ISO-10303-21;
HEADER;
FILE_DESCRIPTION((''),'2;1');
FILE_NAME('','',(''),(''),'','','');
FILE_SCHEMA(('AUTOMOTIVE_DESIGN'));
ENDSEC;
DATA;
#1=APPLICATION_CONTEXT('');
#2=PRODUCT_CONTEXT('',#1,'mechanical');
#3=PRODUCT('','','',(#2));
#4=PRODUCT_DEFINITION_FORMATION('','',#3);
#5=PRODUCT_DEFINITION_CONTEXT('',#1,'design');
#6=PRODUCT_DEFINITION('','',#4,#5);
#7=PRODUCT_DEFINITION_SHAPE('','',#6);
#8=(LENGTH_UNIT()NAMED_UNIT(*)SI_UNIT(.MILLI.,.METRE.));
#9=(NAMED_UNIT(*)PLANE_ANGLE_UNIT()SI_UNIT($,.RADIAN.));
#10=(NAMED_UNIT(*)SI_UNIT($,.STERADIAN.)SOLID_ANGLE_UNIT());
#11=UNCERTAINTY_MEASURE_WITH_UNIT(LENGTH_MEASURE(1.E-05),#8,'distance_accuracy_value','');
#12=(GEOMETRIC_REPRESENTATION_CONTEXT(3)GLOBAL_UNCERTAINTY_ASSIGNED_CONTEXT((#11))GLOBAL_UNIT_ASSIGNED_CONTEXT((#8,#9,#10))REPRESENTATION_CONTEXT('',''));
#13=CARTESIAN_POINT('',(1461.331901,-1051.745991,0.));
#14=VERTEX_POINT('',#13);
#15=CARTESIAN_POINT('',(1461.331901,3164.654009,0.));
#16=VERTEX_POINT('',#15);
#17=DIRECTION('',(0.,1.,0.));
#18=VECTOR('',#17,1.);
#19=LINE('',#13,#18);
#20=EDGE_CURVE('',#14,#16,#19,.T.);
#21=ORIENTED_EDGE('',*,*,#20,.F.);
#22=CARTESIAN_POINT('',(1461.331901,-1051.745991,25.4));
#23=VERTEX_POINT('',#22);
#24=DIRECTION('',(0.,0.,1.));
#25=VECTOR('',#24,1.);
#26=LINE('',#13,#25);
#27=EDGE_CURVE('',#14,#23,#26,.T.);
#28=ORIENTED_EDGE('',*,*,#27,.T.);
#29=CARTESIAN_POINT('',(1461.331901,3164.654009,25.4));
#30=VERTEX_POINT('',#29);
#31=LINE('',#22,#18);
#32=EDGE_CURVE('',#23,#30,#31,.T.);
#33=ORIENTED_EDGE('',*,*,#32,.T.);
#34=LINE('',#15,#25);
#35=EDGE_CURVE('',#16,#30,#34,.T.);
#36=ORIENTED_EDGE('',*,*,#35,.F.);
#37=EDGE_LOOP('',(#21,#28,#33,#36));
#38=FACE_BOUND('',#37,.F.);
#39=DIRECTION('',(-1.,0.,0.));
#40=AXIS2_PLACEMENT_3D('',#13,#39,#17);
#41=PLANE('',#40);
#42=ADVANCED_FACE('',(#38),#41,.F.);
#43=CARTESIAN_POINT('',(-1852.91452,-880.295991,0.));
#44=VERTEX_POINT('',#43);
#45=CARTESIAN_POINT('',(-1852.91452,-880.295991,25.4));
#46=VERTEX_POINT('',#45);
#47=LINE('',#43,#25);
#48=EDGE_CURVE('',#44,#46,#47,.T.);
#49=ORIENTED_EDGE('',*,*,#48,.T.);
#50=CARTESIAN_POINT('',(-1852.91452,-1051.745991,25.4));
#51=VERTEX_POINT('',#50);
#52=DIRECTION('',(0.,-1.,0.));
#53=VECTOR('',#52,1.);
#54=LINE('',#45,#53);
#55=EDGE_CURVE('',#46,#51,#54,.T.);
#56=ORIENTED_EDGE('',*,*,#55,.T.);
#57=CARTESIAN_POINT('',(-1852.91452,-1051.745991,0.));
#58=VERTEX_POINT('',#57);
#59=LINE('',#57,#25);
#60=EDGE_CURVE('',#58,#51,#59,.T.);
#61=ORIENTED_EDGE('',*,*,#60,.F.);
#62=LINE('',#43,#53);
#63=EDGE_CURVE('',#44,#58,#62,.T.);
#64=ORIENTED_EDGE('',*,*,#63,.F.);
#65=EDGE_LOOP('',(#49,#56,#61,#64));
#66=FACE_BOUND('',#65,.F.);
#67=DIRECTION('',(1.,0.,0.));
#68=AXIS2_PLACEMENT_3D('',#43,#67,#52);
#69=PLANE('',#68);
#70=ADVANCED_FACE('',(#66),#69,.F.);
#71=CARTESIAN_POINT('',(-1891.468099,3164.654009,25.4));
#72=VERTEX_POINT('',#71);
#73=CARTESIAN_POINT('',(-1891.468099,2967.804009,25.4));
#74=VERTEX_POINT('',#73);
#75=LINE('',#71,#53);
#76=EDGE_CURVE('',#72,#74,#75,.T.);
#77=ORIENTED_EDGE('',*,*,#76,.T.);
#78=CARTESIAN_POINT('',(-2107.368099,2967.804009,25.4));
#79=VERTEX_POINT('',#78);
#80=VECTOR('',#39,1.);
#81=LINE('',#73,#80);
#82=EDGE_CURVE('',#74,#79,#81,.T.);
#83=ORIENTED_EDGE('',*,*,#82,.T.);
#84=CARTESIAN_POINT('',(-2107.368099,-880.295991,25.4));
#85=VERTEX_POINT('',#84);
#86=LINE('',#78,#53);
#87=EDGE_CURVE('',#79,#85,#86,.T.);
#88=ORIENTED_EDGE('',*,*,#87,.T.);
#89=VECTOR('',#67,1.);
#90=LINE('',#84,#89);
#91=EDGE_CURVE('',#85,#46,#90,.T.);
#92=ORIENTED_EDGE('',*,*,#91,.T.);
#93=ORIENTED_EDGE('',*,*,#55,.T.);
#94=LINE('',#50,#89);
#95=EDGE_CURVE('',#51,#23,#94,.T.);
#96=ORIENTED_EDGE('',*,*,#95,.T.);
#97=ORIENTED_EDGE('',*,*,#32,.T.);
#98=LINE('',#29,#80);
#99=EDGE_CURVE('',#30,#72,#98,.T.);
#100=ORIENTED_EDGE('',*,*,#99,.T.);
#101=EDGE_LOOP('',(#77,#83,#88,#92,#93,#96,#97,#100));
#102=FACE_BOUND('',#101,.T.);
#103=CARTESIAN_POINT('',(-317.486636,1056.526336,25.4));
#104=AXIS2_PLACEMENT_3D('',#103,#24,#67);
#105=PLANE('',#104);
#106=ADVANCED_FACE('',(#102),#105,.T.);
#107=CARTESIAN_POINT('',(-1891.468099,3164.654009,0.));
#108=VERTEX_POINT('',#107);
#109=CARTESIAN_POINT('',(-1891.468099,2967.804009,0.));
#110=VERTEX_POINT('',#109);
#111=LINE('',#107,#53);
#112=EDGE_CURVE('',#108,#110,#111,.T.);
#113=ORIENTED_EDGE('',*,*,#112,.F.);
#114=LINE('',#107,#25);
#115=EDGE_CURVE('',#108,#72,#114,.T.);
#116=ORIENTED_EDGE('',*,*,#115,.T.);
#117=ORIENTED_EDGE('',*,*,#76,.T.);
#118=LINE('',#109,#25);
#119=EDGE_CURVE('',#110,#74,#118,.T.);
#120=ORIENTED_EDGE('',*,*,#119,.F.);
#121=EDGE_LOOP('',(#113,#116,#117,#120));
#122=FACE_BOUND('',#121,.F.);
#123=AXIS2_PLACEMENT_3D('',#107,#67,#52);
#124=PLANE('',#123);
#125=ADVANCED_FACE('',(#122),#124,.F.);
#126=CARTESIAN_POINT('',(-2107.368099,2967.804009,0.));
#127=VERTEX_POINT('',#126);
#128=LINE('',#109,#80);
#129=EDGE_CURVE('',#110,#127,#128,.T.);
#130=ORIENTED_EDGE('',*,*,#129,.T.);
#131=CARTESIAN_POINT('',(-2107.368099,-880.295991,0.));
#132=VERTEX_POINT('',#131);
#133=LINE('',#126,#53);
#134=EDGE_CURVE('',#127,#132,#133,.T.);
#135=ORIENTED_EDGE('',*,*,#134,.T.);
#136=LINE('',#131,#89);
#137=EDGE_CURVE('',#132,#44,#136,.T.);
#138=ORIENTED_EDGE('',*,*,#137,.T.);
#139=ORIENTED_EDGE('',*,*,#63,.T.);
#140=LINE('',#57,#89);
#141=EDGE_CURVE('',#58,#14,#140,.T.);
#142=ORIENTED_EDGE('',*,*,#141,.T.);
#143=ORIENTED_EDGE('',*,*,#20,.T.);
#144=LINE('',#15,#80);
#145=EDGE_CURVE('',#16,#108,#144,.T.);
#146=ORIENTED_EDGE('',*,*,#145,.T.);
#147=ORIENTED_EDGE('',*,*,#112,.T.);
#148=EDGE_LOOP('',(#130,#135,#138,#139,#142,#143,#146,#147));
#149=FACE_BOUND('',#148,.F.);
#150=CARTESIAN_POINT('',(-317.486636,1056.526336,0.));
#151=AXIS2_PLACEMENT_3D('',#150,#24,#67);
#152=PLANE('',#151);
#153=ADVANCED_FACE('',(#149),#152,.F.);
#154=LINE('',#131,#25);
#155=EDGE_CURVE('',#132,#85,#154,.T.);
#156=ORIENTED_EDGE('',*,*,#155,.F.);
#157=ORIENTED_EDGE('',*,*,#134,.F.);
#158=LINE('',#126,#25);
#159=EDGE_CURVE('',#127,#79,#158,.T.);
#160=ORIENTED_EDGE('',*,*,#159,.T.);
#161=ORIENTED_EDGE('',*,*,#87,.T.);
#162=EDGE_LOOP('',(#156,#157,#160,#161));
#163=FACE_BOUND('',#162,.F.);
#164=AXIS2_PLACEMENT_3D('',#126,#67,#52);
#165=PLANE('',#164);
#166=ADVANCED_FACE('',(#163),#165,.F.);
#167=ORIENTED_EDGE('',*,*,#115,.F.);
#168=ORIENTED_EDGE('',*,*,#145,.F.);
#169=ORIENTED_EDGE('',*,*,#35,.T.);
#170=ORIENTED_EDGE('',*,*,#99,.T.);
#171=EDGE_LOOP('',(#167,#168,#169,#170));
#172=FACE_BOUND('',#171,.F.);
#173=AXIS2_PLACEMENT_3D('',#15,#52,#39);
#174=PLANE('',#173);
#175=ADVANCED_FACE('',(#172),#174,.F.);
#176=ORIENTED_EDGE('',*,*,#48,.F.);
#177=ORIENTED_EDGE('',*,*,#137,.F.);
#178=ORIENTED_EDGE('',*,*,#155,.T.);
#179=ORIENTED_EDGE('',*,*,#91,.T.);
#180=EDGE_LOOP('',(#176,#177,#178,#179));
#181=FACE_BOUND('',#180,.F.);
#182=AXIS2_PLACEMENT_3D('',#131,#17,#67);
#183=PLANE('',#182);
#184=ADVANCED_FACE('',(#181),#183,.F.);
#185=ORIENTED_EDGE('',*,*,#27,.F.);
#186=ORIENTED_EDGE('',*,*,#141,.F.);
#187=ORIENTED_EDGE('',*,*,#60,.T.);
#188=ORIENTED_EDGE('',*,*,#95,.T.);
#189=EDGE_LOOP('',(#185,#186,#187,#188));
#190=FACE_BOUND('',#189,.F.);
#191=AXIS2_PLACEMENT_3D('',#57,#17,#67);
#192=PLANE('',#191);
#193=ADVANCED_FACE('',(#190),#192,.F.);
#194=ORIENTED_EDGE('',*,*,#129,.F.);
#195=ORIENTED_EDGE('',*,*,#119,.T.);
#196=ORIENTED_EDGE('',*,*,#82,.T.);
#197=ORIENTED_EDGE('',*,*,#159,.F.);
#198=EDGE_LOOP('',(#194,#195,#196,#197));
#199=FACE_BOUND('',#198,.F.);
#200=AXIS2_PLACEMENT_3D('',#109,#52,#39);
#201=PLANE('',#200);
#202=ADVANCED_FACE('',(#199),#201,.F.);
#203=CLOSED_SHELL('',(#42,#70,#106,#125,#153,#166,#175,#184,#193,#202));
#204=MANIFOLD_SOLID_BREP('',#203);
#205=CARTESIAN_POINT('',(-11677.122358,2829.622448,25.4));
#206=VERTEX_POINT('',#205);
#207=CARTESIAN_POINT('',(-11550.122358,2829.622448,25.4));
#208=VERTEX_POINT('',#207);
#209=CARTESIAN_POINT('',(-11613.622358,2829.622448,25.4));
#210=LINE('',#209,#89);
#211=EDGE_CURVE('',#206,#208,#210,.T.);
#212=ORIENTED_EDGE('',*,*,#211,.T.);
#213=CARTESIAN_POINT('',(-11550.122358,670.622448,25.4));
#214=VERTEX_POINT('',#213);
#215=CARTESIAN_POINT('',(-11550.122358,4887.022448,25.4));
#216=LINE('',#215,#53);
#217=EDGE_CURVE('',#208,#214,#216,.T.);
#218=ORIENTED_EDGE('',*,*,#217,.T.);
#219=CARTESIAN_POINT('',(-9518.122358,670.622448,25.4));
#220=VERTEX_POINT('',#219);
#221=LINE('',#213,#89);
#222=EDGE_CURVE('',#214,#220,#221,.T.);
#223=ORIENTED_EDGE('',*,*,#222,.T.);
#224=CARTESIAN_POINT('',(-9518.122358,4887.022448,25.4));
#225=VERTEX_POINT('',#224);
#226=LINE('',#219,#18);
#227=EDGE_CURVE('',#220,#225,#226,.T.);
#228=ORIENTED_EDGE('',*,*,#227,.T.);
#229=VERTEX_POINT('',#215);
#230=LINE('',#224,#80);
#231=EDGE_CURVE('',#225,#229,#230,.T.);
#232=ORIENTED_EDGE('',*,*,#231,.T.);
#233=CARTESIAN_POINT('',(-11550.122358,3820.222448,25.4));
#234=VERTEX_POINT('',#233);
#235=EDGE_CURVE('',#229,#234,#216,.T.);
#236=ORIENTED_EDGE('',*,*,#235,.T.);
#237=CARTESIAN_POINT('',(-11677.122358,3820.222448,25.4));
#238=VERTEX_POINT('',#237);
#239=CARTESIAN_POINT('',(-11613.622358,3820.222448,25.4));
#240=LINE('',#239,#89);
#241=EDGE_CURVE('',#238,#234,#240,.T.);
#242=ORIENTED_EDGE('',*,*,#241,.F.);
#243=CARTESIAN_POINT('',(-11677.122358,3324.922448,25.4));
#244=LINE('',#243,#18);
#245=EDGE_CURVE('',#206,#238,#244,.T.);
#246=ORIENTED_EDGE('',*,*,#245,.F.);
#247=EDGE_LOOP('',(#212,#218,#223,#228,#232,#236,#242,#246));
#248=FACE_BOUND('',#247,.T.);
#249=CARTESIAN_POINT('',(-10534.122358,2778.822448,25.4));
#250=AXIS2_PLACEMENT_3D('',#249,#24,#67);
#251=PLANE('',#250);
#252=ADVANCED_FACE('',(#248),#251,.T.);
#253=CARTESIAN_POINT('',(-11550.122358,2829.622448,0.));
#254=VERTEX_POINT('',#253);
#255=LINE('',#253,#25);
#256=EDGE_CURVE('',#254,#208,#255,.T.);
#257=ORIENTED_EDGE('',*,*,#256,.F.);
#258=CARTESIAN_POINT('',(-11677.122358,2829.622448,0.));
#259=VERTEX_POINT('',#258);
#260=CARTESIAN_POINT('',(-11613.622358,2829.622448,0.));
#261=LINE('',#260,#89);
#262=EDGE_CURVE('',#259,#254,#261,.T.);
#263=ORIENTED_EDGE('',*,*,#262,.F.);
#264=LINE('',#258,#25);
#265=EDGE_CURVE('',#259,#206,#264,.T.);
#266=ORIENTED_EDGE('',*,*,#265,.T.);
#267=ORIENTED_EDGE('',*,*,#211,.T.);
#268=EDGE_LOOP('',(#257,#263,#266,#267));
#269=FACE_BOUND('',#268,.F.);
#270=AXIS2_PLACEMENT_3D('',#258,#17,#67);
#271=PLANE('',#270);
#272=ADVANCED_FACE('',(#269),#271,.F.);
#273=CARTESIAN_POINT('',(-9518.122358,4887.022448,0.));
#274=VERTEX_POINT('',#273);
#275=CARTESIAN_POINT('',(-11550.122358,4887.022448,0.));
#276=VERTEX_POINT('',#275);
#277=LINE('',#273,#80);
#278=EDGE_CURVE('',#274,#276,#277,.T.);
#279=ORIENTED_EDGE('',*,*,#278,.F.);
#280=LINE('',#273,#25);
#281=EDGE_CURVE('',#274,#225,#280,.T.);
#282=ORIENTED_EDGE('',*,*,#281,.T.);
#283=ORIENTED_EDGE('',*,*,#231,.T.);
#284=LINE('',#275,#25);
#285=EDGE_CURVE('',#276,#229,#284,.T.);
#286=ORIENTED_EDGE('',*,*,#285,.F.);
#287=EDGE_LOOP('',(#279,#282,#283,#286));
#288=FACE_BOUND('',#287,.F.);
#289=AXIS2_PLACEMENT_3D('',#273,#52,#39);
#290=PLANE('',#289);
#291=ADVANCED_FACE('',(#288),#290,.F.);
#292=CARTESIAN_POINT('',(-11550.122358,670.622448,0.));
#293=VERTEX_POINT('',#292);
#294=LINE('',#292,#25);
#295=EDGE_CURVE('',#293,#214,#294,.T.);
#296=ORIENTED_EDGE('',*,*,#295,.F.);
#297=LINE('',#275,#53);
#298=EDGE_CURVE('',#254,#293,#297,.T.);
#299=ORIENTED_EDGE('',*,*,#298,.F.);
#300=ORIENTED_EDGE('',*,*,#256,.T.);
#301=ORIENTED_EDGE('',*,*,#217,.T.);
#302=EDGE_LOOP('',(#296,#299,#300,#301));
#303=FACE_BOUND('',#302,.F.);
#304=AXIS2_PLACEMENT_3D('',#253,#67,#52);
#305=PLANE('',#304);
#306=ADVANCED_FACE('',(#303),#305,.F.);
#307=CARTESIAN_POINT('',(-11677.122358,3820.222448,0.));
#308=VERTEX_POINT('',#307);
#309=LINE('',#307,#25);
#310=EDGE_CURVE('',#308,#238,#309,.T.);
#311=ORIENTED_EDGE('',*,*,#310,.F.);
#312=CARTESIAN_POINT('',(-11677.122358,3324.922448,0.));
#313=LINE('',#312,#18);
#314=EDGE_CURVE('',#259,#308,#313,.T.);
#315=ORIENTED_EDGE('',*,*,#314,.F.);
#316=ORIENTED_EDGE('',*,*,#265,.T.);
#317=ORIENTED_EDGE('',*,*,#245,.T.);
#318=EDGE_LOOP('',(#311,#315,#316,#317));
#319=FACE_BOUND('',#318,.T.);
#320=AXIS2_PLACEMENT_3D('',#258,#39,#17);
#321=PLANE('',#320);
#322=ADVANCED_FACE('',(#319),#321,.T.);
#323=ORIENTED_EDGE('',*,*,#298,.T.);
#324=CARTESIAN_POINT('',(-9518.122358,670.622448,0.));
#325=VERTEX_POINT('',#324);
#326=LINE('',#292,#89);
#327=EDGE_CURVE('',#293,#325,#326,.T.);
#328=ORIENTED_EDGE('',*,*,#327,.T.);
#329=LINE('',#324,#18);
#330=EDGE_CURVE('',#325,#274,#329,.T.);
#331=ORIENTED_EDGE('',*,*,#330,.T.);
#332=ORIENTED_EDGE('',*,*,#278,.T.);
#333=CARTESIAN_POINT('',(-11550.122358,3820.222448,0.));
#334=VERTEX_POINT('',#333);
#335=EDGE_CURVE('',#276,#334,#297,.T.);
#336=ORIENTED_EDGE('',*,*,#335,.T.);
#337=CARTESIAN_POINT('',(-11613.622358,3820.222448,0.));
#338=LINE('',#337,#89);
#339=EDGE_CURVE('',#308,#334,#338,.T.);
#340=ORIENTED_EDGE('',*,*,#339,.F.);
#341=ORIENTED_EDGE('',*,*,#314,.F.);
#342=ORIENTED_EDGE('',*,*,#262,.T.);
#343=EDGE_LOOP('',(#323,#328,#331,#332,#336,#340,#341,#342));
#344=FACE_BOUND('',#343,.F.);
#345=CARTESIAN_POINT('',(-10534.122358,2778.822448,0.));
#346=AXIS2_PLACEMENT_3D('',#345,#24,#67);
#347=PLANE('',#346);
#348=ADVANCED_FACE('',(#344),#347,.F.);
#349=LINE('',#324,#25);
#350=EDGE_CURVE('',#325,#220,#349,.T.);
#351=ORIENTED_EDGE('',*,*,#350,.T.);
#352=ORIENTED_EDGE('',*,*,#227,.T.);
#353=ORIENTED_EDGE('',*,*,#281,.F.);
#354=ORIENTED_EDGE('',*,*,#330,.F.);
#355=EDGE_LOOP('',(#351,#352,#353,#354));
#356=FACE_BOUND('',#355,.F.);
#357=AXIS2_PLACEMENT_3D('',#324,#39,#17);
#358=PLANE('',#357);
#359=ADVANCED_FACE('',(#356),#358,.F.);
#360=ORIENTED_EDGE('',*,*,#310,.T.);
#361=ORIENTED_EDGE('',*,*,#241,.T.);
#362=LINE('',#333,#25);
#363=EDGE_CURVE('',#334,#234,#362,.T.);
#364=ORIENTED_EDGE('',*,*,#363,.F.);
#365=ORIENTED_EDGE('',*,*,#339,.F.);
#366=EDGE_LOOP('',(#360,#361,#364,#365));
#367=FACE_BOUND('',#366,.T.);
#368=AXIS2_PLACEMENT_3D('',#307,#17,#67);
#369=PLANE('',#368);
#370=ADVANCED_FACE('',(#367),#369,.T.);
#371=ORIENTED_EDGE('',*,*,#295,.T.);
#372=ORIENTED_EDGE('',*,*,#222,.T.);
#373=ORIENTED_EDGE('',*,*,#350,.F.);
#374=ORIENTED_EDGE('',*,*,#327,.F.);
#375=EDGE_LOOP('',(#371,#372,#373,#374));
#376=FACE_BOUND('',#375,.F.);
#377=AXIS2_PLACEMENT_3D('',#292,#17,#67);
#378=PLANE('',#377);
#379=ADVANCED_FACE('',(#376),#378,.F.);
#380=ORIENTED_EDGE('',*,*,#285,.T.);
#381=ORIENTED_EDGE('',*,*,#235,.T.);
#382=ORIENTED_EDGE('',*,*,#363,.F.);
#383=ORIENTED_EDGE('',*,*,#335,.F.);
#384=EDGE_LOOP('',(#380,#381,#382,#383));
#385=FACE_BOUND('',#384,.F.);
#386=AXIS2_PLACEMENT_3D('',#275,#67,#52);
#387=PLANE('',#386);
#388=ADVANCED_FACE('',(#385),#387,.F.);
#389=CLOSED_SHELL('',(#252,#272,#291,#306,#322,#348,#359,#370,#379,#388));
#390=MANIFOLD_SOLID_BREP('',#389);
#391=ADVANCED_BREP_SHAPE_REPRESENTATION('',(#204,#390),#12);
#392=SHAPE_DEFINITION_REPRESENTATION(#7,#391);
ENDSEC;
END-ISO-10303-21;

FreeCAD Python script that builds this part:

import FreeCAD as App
import Part
import Sketcher
from FreeCAD import Vector
Q = App.Units.Quantity


def add_polygon(sketch, points):
    """Adds a closed chain of lines whose ends are joined by coincident constraints."""
    first, n = sketch.GeometryCount, len(points)
    for a, b in zip(points, points[1:] + points[:1]):
        sketch.addGeometry(Part.LineSegment(App.Vector(*a, 0), App.Vector(*b, 0)), False)
    for i in range(n):
        sketch.addConstraint(Sketcher.Constraint("Coincident", first + i, 2, first + (i + 1) % n, 1))

doc = App.newDocument("Part")
params = doc.addObject("Spreadsheet::Sheet", "Params")
for row, (alias, value) in enumerate([
    ("sketch1_width", "132 in"),
    ("sketch1_height", "166 in"),
    ("sketch1_width2", "8.5 in"),
    ("sketch1_height2", "151.5 in"),
    ("sketch1_height3", "6.75 in"),
    ("pad1_length", "1 in"),
    ("sketch2_width", "5 in"),
    ("sketch2_width2", "80 in"),
    ("sketch2_height", "42 in"),
    ("sketch2_height2", "39 in"),
    ("sketch2_height3", "85 in"),
    ("pad2_length", "1 in"),
], start=1):
    params.set(f"A{row}", alias)
    params.set(f"B{row}", "=" + value)
    params.setAlias(f"B{row}", alias)

body = doc.addObject("PartDesign::Body", "Body")

sketch1 = doc.addObject("Sketcher::SketchObject", "Sketch")
body.addObject(sketch1)
sketch1.AttachmentSupport = (doc.XY_Plane, [""])
sketch1.MapMode = "FlatFace"
add_polygon(sketch1, [(-1853, -880), (-1853, -1052), (1461, -1052), (1461, 3165), (-1891, 3165), (-1891, 2968), (-2107, 2968), (-2107, -880)])
sketch1.addConstraint([
    Sketcher.Constraint("Vertical", 0),
    Sketcher.Constraint("Horizontal", 1),
    Sketcher.Constraint("Vertical", 2),
    Sketcher.Constraint("Horizontal", 3),
    Sketcher.Constraint("Vertical", 4),
    Sketcher.Constraint("Horizontal", 5),
    Sketcher.Constraint("Vertical", 6),
    Sketcher.Constraint("Horizontal", 7),
    Sketcher.Constraint("DistanceX", 3, 2, 3, 1, Q("132 in")),
    Sketcher.Constraint("DistanceY", 2, 1, 2, 2, Q("166 in")),
    Sketcher.Constraint("DistanceX", 5, 2, 5, 1, Q("8.5 in")),
    Sketcher.Constraint("DistanceY", 6, 2, 6, 1, Q("151.5 in")),
    Sketcher.Constraint("DistanceY", 0, 2, 0, 1, Q("6.75 in")),
    Sketcher.Constraint("DistanceX", 1, 1, 1, 2, Q("3314.246421 mm")),
    Sketcher.Constraint("DistanceX", -1, 1, 1, 2, Q("1461.331901 mm")),
    Sketcher.Constraint("DistanceY", 0, 2, -1, 1, Q("1051.745991 mm")),
])
sketch1.setExpression("Constraints[16]", "Params.sketch1_width")
sketch1.setExpression("Constraints[17]", "Params.sketch1_height")
sketch1.setExpression("Constraints[18]", "Params.sketch1_width2")
sketch1.setExpression("Constraints[19]", "Params.sketch1_height2")
sketch1.setExpression("Constraints[20]", "Params.sketch1_height3")
pad1 = doc.addObject("PartDesign::Pad", "Pad")
body.addObject(pad1)
pad1.Profile = sketch1
pad1.setExpression("Length", "Params.pad1_length")
body2 = doc.addObject("PartDesign::Body", "Body001")

sketch2 = doc.addObject("Sketcher::SketchObject", "Sketch001")
body2.addObject(sketch2)
sketch2.AttachmentSupport = (doc.getObject("XY_Plane001"), [""])
sketch2.MapMode = "FlatFace"
add_polygon(sketch2, [(-11550, 4887), (-11550, 3820), (-11677, 3820), (-11677, 2830), (-11550, 2830), (-11550, 671), (-9518, 671), (-9518, 4887)])
sketch2.addConstraint([
    Sketcher.Constraint("Vertical", 0),
    Sketcher.Constraint("Horizontal", 1),
    Sketcher.Constraint("Vertical", 2),
    Sketcher.Constraint("Horizontal", 3),
    Sketcher.Constraint("Vertical", 4),
    Sketcher.Constraint("Horizontal", 5),
    Sketcher.Constraint("Vertical", 6),
    Sketcher.Constraint("Horizontal", 7),
    Sketcher.Constraint("Vertical", 0, 2, 3, 2),
    Sketcher.Constraint("DistanceX", 1, 2, 1, 1, Q("5 in")),
    Sketcher.Constraint("DistanceX", 5, 1, 5, 2, Q("80 in")),
    Sketcher.Constraint("DistanceY", 0, 2, 0, 1, Q("42 in")),
    Sketcher.Constraint("DistanceY", 2, 2, 2, 1, Q("39 in")),
    Sketcher.Constraint("DistanceY", 4, 2, 4, 1, Q("85 in")),
    Sketcher.Constraint("DistanceX", 0, 2, -1, 1, Q("11550.122358 mm")),
    Sketcher.Constraint("DistanceY", -1, 1, 2, 2, Q("2829.622448 mm")),
])
sketch2.setExpression("Constraints[17]", "Params.sketch2_width")
sketch2.setExpression("Constraints[18]", "Params.sketch2_width2")
sketch2.setExpression("Constraints[19]", "Params.sketch2_height")
sketch2.setExpression("Constraints[20]", "Params.sketch2_height2")
sketch2.setExpression("Constraints[21]", "Params.sketch2_height3")
pad2 = doc.addObject("PartDesign::Pad", "Pad001")
body2.addObject(pad2)
pad2.Profile = sketch2
pad2.setExpression("Length", "Params.pad2_length")

doc.recompute()
